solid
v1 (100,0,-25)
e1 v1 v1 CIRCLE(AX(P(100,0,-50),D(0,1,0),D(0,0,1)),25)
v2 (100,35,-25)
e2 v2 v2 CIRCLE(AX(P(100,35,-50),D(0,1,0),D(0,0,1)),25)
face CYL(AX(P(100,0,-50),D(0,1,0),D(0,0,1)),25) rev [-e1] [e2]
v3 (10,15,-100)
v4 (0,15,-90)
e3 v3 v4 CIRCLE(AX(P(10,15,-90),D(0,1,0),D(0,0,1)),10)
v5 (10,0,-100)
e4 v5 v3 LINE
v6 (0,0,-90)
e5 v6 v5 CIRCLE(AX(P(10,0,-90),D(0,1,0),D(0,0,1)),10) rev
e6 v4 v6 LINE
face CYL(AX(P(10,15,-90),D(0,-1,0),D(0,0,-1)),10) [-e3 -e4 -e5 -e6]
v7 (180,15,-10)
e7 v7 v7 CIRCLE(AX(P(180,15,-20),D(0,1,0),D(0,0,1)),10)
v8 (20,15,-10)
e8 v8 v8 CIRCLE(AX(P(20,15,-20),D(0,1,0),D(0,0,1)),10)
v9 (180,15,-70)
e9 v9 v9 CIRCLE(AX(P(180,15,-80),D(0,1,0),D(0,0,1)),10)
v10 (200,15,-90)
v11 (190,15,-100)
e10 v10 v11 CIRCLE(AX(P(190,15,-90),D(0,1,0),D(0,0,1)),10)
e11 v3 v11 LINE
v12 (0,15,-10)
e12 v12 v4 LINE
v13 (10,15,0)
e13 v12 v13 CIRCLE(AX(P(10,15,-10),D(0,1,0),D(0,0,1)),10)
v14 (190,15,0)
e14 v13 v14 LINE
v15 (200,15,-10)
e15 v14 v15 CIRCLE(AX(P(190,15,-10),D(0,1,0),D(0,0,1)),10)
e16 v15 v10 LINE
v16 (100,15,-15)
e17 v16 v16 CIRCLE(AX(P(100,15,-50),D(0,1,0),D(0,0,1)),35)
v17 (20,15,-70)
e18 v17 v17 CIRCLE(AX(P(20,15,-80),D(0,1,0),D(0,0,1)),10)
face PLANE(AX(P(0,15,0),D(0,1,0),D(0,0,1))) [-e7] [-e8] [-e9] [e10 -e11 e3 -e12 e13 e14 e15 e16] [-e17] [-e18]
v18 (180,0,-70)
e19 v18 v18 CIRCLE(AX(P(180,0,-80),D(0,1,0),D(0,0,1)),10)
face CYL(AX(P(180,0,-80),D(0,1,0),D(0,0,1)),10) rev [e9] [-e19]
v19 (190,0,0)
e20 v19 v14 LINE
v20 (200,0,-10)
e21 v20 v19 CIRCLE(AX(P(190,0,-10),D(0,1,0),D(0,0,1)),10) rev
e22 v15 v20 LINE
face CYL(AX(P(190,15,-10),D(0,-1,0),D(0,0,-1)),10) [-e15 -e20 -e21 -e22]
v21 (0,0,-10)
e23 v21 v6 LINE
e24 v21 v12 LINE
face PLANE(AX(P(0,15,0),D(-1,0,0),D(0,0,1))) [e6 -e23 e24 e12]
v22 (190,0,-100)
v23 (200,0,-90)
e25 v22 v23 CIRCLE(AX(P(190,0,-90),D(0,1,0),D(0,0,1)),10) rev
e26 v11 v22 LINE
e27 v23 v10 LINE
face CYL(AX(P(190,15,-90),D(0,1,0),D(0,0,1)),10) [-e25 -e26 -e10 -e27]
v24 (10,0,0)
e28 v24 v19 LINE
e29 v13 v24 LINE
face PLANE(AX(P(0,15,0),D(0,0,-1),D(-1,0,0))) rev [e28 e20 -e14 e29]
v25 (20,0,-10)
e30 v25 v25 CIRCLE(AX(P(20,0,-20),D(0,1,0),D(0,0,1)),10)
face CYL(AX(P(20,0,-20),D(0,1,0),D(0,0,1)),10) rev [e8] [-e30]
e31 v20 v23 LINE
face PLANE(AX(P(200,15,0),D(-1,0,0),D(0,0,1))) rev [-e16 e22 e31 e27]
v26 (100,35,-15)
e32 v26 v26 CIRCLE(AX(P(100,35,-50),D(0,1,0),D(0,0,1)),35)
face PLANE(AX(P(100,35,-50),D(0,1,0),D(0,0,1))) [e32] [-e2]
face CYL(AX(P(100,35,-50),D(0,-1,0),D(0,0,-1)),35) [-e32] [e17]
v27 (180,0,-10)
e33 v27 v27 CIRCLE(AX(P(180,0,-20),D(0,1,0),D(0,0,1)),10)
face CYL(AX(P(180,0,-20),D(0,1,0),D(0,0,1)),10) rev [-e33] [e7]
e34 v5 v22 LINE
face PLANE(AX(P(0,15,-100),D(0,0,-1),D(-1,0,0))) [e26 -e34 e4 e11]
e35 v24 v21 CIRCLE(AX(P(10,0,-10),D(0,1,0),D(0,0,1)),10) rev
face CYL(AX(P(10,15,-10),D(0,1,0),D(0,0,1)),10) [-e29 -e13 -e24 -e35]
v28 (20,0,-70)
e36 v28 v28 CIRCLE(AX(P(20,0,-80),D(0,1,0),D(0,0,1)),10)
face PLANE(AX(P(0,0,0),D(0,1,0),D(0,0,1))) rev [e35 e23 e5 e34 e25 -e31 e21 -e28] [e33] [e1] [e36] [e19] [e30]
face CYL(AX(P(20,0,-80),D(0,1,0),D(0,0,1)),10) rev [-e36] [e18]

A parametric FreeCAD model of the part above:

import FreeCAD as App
import Part
import Sketcher

V = App.Vector


def edges_at(feature, points):
    """Names of the edges that pass closest to the given points."""
    edges = feature.Shape.Edges
    near = lambda p: min(range(len(edges)), key=lambda i: edges[i].distToShape(Part.Vertex(*p))[0])
    return sorted({f"Edge{near(p) + 1}" for p in points})

doc = App.newDocument("Part")
body = doc.addObject("PartDesign::Body", "Body")

sketch1 = body.newObject("Sketcher::SketchObject", "Sketch")
sketch1.AttachmentSupport = (doc.getObject("XZ_Plane"), [""])
sketch1.MapMode = "FlatFace"
sketch1.addGeometry(Part.LineSegment(V(0, -100, 0), V(0, 0, 0)), False)
sketch1.addGeometry(Part.LineSegment(V(0, 0, 0), V(200, 0, 0)), False)
sketch1.addGeometry(Part.LineSegment(V(200, 0, 0), V(200, -100, 0)), False)
sketch1.addGeometry(Part.LineSegment(V(200, -100, 0), V(0, -100, 0)), False)
sketch1.addConstraint(Sketcher.Constraint("Coincident", 0, 2, 1, 1))
sketch1.addConstraint(Sketcher.Constraint("Coincident", 1, 2, 2, 1))
sketch1.addConstraint(Sketcher.Constraint("Coincident", 2, 2, 3, 1))
sketch1.addConstraint(Sketcher.Constraint("Coincident", 3, 2, 0, 1))
sketch1.addConstraint(Sketcher.Constraint("Vertical", 0))
sketch1.addConstraint(Sketcher.Constraint("Horizontal", 1))
sketch1.addConstraint(Sketcher.Constraint("Vertical", 2))
sketch1.addConstraint(Sketcher.Constraint("Horizontal", 3))
sketch1.addConstraint(Sketcher.Constraint("Coincident", 0, 2, -1, 1))
sketch1.addConstraint(Sketcher.Constraint("DistanceX", 1, 1, 1, 2, 200.0))
sketch1.addConstraint(Sketcher.Constraint("DistanceY", 0, 1, 0, 2, 100.0))
pad1 = body.newObject("PartDesign::Pad", "Pad")
pad1.Profile = sketch1
pad1.Length = 15
pad1.Reversed = True

sketch2 = body.newObject("Sketcher::SketchObject", "Sketch001")
sketch2.AttachmentSupport = (doc.getObject("XZ_Plane"), [""])
sketch2.MapMode = "FlatFace"
sketch2.AttachmentOffset = App.Placement(V(0, 0, -15), App.Rotation())
sketch2.addGeometry(Part.Circle(V(100, -50, 0), V(0, 0, 1), 35), False)
sketch2.addConstraint(Sketcher.Constraint("Diameter", 0, 70.0))
sketch2.addConstraint(Sketcher.Constraint("DistanceX", -1, 1, 0, 3, 100.0))
sketch2.addConstraint(Sketcher.Constraint("DistanceY", 0, 3, -1, 1, 50.0))
pad2 = body.newObject("PartDesign::Pad", "Pad001")
pad2.Profile = sketch2
pad2.Length = 20
pad2.Reversed = True

sketch3 = body.newObject("Sketcher::SketchObject", "Sketch002")
sketch3.AttachmentSupport = (doc.getObject("XZ_Plane"), [""])
sketch3.MapMode = "FlatFace"
sketch3.AttachmentOffset = App.Placement(V(0, 0, -35), App.Rotation())
sketch3.addGeometry(Part.Circle(V(100, -50, 0), V(0, 0, 1), 25), False)
sketch3.addConstraint(Sketcher.Constraint("Diameter", 0, 50.0))
sketch3.addConstraint(Sketcher.Constraint("DistanceX", -1, 1, 0, 3, 100.0))
sketch3.addConstraint(Sketcher.Constraint("DistanceY", 0, 3, -1, 1, 50.0))
pocket1 = body.newObject("PartDesign::Pocket", "Pocket")
pocket1.Profile = sketch3
pocket1.Type = "ThroughAll"
pocket1.Reversed = True

sketch4 = body.newObject("Sketcher::SketchObject", "Sketch003")
sketch4.AttachmentSupport = (doc.getObject("XZ_Plane"), [""])
sketch4.MapMode = "FlatFace"
sketch4.AttachmentOffset = App.Placement(V(0, 0, -15), App.Rotation())
sketch4.addGeometry(Part.Circle(V(20, -20, 0), V(0, 0, 1), 10), False)
sketch4.addGeometry(Part.Circle(V(20, -80, 0), V(0, 0, 1), 10), False)
sketch4.addGeometry(Part.Circle(V(180, -80, 0), V(0, 0, 1), 10), False)
sketch4.addGeometry(Part.Circle(V(180, -20, 0), V(0, 0, 1), 10), False)
sketch4.addConstraint(Sketcher.Constraint("Equal", 0, 1))
sketch4.addConstraint(Sketcher.Constraint("Equal", 1, 2))
sketch4.addConstraint(Sketcher.Constraint("Equal", 2, 3))
sketch4.addConstraint(Sketcher.Constraint("Horizontal", 1, 3, 2, 3))
sketch4.addConstraint(Sketcher.Constraint("Horizontal", 0, 3, 3, 3))
sketch4.addConstraint(Sketcher.Constraint("Vertical", 0, 3, 1, 3))
sketch4.addConstraint(Sketcher.Constraint("Vertical", 2, 3, 3, 3))
sketch4.addConstraint(Sketcher.Constraint("Diameter", 0, 20.0))
sketch4.addConstraint(Sketcher.Constraint("DistanceX", -1, 1, 0, 3, 20.0))
sketch4.addConstraint(Sketcher.Constraint("DistanceY", 0, 3, -1, 1, 20.0))
sketch4.addConstraint(Sketcher.Constraint("DistanceY", 1, 3, -1, 1, 80.0))
sketch4.addConstraint(Sketcher.Constraint("DistanceX", -1, 1, 2, 3, 180.0))
pocket2 = body.newObject("PartDesign::Pocket", "Pocket001")
pocket2.Profile = sketch4
pocket2.Type = "ThroughAll"
pocket2.Reversed = True
doc.recompute()

fillet = body.newObject("PartDesign::Fillet", "Fillet")
fillet.Base = (pocket2, edges_at(pocket2, [
    (0, 7.5, 0),
    (0, 7.5, -100),
    (200, 7.5, -100),
    (200, 7.5, 0),
]))
fillet.Radius = 10

doc.recompute()
